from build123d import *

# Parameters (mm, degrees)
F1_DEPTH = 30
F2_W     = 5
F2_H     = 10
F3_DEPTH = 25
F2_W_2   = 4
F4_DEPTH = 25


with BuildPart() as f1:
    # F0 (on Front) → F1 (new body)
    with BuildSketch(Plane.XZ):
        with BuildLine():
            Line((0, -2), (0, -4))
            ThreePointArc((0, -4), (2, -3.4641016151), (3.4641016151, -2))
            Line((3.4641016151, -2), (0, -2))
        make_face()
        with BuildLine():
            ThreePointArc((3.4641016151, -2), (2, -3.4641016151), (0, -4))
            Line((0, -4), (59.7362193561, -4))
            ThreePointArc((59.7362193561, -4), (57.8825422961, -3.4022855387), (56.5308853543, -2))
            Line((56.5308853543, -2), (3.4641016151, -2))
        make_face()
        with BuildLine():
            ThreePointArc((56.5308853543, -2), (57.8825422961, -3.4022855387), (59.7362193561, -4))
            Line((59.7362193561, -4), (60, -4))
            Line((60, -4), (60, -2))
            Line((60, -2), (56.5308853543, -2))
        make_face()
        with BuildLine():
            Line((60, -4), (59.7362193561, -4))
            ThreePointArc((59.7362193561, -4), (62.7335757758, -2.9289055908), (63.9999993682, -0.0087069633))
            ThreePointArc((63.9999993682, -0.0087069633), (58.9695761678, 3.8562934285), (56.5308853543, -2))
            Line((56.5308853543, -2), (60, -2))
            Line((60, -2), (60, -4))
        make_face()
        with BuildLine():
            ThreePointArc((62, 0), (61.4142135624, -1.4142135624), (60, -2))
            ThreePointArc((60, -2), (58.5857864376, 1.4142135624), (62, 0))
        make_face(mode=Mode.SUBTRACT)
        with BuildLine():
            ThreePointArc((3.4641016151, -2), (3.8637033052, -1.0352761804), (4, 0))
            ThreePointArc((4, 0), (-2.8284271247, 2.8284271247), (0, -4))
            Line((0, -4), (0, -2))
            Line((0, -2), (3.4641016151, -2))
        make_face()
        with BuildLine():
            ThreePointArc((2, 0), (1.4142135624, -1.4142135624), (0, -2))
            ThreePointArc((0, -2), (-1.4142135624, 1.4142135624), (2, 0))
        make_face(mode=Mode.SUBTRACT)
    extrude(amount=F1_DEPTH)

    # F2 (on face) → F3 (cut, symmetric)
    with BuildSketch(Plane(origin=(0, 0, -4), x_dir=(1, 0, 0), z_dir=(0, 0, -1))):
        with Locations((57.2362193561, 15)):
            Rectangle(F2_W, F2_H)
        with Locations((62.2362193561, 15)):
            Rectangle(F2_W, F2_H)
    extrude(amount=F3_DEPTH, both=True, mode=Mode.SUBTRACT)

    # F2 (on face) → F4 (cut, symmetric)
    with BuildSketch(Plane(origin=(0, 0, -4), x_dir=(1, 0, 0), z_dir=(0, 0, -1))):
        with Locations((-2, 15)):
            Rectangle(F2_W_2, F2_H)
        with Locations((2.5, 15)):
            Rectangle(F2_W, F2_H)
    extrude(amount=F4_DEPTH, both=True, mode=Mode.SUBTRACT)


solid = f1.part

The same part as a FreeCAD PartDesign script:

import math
import FreeCAD as App
import Part
import Sketcher
Q = App.Units.Quantity

doc = App.newDocument("Part")
body = doc.addObject("PartDesign::Body", "Body")

sketch1 = doc.addObject("Sketcher::SketchObject", "Sketch")
body.addObject(sketch1)
sketch1.AttachmentSupport = (doc.XZ_Plane, [""])
sketch1.MapMode = "FlatFace"
sketch1.addGeometry([
    Part.LineSegment(App.Vector(56.5, -2, 0), App.Vector(3.5, -2, 0)),
    Part.ArcOfCircle(Part.Circle(App.Vector(0, 0, 0), App.Vector(0, 0, 1), 4), math.radians(-30), math.radians(0)),
    Part.ArcOfCircle(Part.Circle(App.Vector(0, 0, 0), App.Vector(0, 0, 1), 4), math.radians(0), math.radians(270)),
    Part.LineSegment(App.Vector(0, -4, 0), App.Vector(59.7, -4, 0)),
    Part.ArcOfCircle(Part.Circle(App.Vector(60, 0, 0), App.Vector(0, 0, 1), 4), math.radians(-94), math.radians(0)),
    Part.ArcOfCircle(Part.Circle(App.Vector(60, 0, 0), App.Vector(0, 0, 1), 4), math.radians(0), math.radians(210)),
    Part.ArcOfCircle(Part.Circle(App.Vector(0, 0, 0), App.Vector(0, 0, 1), 2), math.radians(0), math.radians(270)),
    Part.ArcOfCircle(Part.Circle(App.Vector(0, 0, 0), App.Vector(0, 0, 1), 2), math.radians(-90), math.radians(0)),
    Part.ArcOfCircle(Part.Circle(App.Vector(60, 0, 0), App.Vector(0, 0, 1), 2), math.radians(0), math.radians(270)),
    Part.ArcOfCircle(Part.Circle(App.Vector(60, 0, 0), App.Vector(0, 0, 1), 2), math.radians(-90), math.radians(0)),
], False)
sketch1.addConstraint([
    Sketcher.Constraint("Coincident", 0, 2, 1, 1),
    Sketcher.Constraint("Tangent", 1, 2, 2, 1),
    Sketcher.Constraint("Tangent", 2, 2, 3, 1),
    Sketcher.Constraint("Coincident", 3, 2, 4, 1),
    Sketcher.Constraint("Tangent", 4, 2, 5, 1),
    Sketcher.Constraint("Coincident", 5, 2, 0, 1),
    Sketcher.Constraint("Tangent", 6, 1, 7, 2),
    Sketcher.Constraint("Coincident", 7, 1, 6, 2),
    Sketcher.Constraint("Tangent", 8, 1, 9, 2),
    Sketcher.Constraint("Coincident", 9, 1, 8, 2),
    Sketcher.Constraint("Horizontal", 0),
    Sketcher.Constraint("Horizontal", 3),
    Sketcher.Constraint("Coincident", 1, 3, -1, 1),
    Sketcher.Constraint("Coincident", 6, 3, -1, 1),
    Sketcher.Constraint("Equal", 1, 2),
    Sketcher.Constraint("Equal", 2, 4),
    Sketcher.Constraint("Equal", 4, 5),
    Sketcher.Constraint("Equal", 7, 8),
    Sketcher.Constraint("PointOnObject", 8, 3, -1),
    Sketcher.Constraint("PointOnObject", 1, 2, -1),
    Sketcher.Constraint("PointOnObject", 6, 1, -1),
    Sketcher.Constraint("PointOnObject", 7, 1, -2),
    Sketcher.Constraint("PointOnObject", 8, 1, -1),
    Sketcher.Constraint("Horizontal", 5, 3, 4, 2),
    Sketcher.Constraint("Horizontal", 5, 2, 7, 1),
    Sketcher.Constraint("Vertical", 5, 3, 8, 3),
    Sketcher.Constraint("Vertical", 8, 3, 9, 1),
    Sketcher.Constraint("Radius", 1, Q("4 mm")),
    Sketcher.Constraint("Radius", 6, Q("2 mm")),
    Sketcher.Constraint("DistanceX", -1, 1, 4, 3, Q("59.999999 mm")),
    Sketcher.Constraint("DistanceX", 3, 1, 3, 2, Q("59.736219 mm")),
])
pad1 = doc.addObject("PartDesign::Pad", "Pad")
body.addObject(pad1)
pad1.Profile = sketch1
pad1.Length = 30

sketch2 = doc.addObject("Sketcher::SketchObject", "Sketch001")
body.addObject(sketch2)
sketch2.AttachmentSupport = (doc.XY_Plane, [""])
sketch2.MapMode = "FlatFace"
sketch2.AttachmentOffset = App.Placement(App.Vector(0, 0, -4), App.Rotation())
sketch2.addGeometry([
    Part.LineSegment(App.Vector(55, -20, 0), App.Vector(55, -10, 0)),
    Part.LineSegment(App.Vector(55, -10, 0), App.Vector(65, -10, 0)),
    Part.LineSegment(App.Vector(65, -10, 0), App.Vector(65, -20, 0)),
    Part.LineSegment(App.Vector(65, -20, 0), App.Vector(55, -20, 0)),
], False)
sketch2.addConstraint([
    Sketcher.Constraint("Coincident", 0, 2, 1, 1),
    Sketcher.Constraint("Coincident", 1, 2, 2, 1),
    Sketcher.Constraint("Coincident", 2, 2, 3, 1),
    Sketcher.Constraint("Coincident", 3, 2, 0, 1),
    Sketcher.Constraint("Vertical", 0),
    Sketcher.Constraint("Horizontal", 1),
    Sketcher.Constraint("Vertical", 2),
    Sketcher.Constraint("Horizontal", 3),
    Sketcher.Constraint("Equal", 3, 0),
    Sketcher.Constraint("DistanceX", 1, 1, 1, 2, Q("10 mm")),
    Sketcher.Constraint("DistanceY", 0, 2, -1, 1, Q("10 mm")),
    Sketcher.Constraint("DistanceX", -1, 1, 0, 2, Q("54.736219 mm")),
])
pocket1 = doc.addObject("PartDesign::Pocket", "Pocket")
body.addObject(pocket1)
pocket1.Profile = sketch2
pocket1.Length = 50
pocket1.Midplane = True

sketch3 = doc.addObject("Sketcher::SketchObject", "Sketch002")
body.addObject(sketch3)
sketch3.AttachmentSupport = (doc.XY_Plane, [""])
sketch3.MapMode = "FlatFace"
sketch3.AttachmentOffset = App.Placement(App.Vector(0, 0, -4), App.Rotation())
sketch3.addGeometry([
    Part.LineSegment(App.Vector(-4, -20, 0), App.Vector(-4, -10, 0)),
    Part.LineSegment(App.Vector(-4, -10, 0), App.Vector(5, -10, 0)),
    Part.LineSegment(App.Vector(5, -10, 0), App.Vector(5, -20, 0)),
    Part.LineSegment(App.Vector(5, -20, 0), App.Vector(-4, -20, 0)),
], False)
sketch3.addConstraint([
    Sketcher.Constraint("Coincident", 0, 2, 1, 1),
    Sketcher.Constraint("Coincident", 1, 2, 2, 1),
    Sketcher.Constraint("Coincident", 2, 2, 3, 1),
    Sketcher.Constraint("Coincident", 3, 2, 0, 1),
    Sketcher.Constraint("Vertical", 0),
    Sketcher.Constraint("Horizontal", 1),
    Sketcher.Constraint("Vertical", 2),
    Sketcher.Constraint("Horizontal", 3),
    Sketcher.Constraint("DistanceX", 1, 1, 1, 2, Q("9 mm")),
    Sketcher.Constraint("DistanceY", 0, 1, 0, 2, Q("10 mm")),
    Sketcher.Constraint("DistanceX", 0, 2, -1, 1, Q("4 mm")),
    Sketcher.Constraint("DistanceY", 0, 2, -1, 1, Q("10 mm")),
])
pocket2 = doc.addObject("PartDesign::Pocket", "Pocket001")
body.addObject(pocket2)
pocket2.Profile = sketch3
pocket2.Length = 50
pocket2.Midplane = True

doc.recompute()
